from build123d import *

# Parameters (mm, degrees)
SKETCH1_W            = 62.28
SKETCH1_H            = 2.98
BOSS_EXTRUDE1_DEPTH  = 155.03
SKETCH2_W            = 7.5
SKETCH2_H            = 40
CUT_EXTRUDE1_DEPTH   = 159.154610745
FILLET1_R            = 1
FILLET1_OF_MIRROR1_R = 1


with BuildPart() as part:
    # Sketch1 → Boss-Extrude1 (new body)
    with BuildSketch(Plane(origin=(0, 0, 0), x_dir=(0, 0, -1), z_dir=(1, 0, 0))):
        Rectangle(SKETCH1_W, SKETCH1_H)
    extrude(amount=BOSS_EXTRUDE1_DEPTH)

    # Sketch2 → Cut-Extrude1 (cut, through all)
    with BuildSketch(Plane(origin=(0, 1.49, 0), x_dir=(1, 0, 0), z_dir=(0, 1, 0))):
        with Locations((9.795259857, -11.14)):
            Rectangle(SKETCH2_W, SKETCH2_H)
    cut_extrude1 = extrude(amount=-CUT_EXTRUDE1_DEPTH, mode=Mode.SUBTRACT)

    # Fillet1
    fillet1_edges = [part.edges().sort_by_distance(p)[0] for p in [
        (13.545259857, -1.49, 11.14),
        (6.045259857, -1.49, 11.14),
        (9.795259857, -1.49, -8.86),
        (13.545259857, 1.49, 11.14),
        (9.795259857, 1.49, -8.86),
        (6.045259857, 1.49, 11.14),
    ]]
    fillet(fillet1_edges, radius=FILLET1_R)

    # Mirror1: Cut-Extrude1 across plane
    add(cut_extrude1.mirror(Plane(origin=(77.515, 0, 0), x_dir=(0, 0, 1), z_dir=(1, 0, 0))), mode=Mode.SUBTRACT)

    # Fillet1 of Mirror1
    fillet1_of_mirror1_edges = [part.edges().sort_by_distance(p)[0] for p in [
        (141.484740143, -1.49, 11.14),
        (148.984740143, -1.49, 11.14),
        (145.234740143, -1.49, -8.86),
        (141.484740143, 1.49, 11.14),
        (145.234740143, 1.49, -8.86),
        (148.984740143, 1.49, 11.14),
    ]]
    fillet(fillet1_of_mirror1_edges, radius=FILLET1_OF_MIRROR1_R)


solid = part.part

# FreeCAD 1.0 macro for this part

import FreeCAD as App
import Part
import Sketcher

V = App.Vector
Q = App.Units.Quantity


def edges_at(feature, points):
    """Names of the edges that pass closest to the given points."""
    edges = feature.Shape.Edges
    near = lambda p: min(range(len(edges)), key=lambda i: edges[i].distToShape(Part.Vertex(*p))[0])
    return sorted({f"Edge{near(p) + 1}" for p in points})

doc = App.newDocument("Part")
body = doc.addObject("PartDesign::Body", "Body")

# Sketch on YZ plane
sketch1 = body.newObject("Sketcher::SketchObject", "Sketch")
sketch1.AttachmentSupport = (doc.getObject("YZ_Plane"), [""])
sketch1.MapMode = "FlatFace"
sketch1.addGeometry(Part.LineSegment(V(1.49, 31.14, 0), V(-1.49, 31.14, 0)), False)
sketch1.addGeometry(Part.LineSegment(V(-1.49, 31.14, 0), V(-1.49, -31.14, 0)), False)
sketch1.addGeometry(Part.LineSegment(V(-1.49, -31.14, 0), V(1.49, -31.14, 0)), False)
sketch1.addGeometry(Part.LineSegment(V(1.49, -31.14, 0), V(1.49, 31.14, 0)), False)
sketch1.addConstraint(Sketcher.Constraint("Coincident", 0, 2, 1, 1))
sketch1.addConstraint(Sketcher.Constraint("Coincident", 1, 2, 2, 1))
sketch1.addConstraint(Sketcher.Constraint("Coincident", 2, 2, 3, 1))
sketch1.addConstraint(Sketcher.Constraint("Coincident", 3, 2, 0, 1))
sketch1.addConstraint(Sketcher.Constraint("Horizontal", 0))
sketch1.addConstraint(Sketcher.Constraint("Vertical", 1))
sketch1.addConstraint(Sketcher.Constraint("Horizontal", 2))
sketch1.addConstraint(Sketcher.Constraint("Vertical", 3))
sketch1.addConstraint(Sketcher.Constraint("Symmetric", 0, 2, 2, 2, -1, 1))
sketch1.addConstraint(Sketcher.Constraint("DistanceX", 0, 2, 0, 1, Q("2.98 mm")))
sketch1.addConstraint(Sketcher.Constraint("DistanceY", 1, 2, 1, 1, Q("62.28 mm")))
pad1 = body.newObject("PartDesign::Pad", "Pad")
pad1.Profile = sketch1
pad1.Length = 155.03

# Sketch on XZ plane
sketch2 = body.newObject("Sketcher::SketchObject", "Sketch001")
sketch2.AttachmentSupport = (doc.getObject("XZ_Plane"), [""])
sketch2.MapMode = "FlatFace"
sketch2.AttachmentOffset = App.Placement(V(0, 0, -1.49), App.Rotation())
sketch2.addGeometry(Part.LineSegment(V(6.04526, -8.86, 0), V(6.04526, 31.14, 0)), False)
sketch2.addGeometry(Part.LineSegment(V(6.04526, 31.14, 0), V(13.54526, 31.14, 0)), False)
sketch2.addGeometry(Part.LineSegment(V(13.54526, 31.14, 0), V(13.54526, -8.86, 0)), False)
sketch2.addGeometry(Part.LineSegment(V(13.54526, -8.86, 0), V(6.04526, -8.86, 0)), False)
sketch2.addConstraint(Sketcher.Constraint("Coincident", 0, 2, 1, 1))
sketch2.addConstraint(Sketcher.Constraint("Coincident", 1, 2, 2, 1))
sketch2.addConstraint(Sketcher.Constraint("Coincident", 2, 2, 3, 1))
sketch2.addConstraint(Sketcher.Constraint("Coincident", 3, 2, 0, 1))
sketch2.addConstraint(Sketcher.Constraint("Vertical", 0))
sketch2.addConstraint(Sketcher.Constraint("Horizontal", 1))
sketch2.addConstraint(Sketcher.Constraint("Vertical", 2))
sketch2.addConstraint(Sketcher.Constraint("Horizontal", 3))
sketch2.addConstraint(Sketcher.Constraint("DistanceY", 0, 1, 0, 2, Q("40 mm")))
sketch2.addConstraint(Sketcher.Constraint("DistanceX", 1, 1, 1, 2, Q("7.5 mm")))
sketch2.addConstraint(Sketcher.Constraint("DistanceY", -1, 1, 0, 2, Q("31.14 mm")))
sketch2.addConstraint(Sketcher.Constraint("DistanceX", -1, 1, 0, 2, Q("6.04526 mm")))
pocket1 = body.newObject("PartDesign::Pocket", "Pocket")
pocket1.Profile = sketch2
pocket1.Type = "ThroughAll"
pocket1.Reversed = True
doc.recompute()

fillet = body.newObject("PartDesign::Fillet", "Fillet")
fillet.Base = (pocket1, edges_at(pocket1, [
    (13.545, -1.49, 11.14),
    (6.045, -1.49, 11.14),
    (9.795, -1.49, -8.86),
    (13.545, 1.49, 11.14),
    (9.795, 1.49, -8.86),
    (6.045, 1.49, 11.14),
]))
fillet.Radius = 1
doc.recompute()

datumplane = body.newObject("PartDesign::Plane", "DatumPlane")
datumplane.AttachmentSupport = (doc.getObject("YZ_Plane"), [""])
datumplane.MapMode = "FlatFace"
datumplane.AttachmentOffset = App.Placement(V(0, 0, 77.515), App.Rotation())
mirrored = body.newObject("PartDesign::Mirrored", "Mirrored")
mirrored.Originals = [pocket1]
mirrored.MirrorPlane = (datumplane, [""])
body.Tip = mirrored
doc.recompute()

fillet2 = body.newObject("PartDesign::Fillet", "Fillet001")
fillet2.Base = (mirrored, edges_at(mirrored, [
    (141.485, -1.49, 11.14),
    (148.985, -1.49, 11.14),
    (145.235, -1.49, -8.86),
    (141.485, 1.49, 11.14),
    (145.235, 1.49, -8.86),
    (148.985, 1.49, 11.14),
]))
fillet2.Radius = 1

doc.recompute()
